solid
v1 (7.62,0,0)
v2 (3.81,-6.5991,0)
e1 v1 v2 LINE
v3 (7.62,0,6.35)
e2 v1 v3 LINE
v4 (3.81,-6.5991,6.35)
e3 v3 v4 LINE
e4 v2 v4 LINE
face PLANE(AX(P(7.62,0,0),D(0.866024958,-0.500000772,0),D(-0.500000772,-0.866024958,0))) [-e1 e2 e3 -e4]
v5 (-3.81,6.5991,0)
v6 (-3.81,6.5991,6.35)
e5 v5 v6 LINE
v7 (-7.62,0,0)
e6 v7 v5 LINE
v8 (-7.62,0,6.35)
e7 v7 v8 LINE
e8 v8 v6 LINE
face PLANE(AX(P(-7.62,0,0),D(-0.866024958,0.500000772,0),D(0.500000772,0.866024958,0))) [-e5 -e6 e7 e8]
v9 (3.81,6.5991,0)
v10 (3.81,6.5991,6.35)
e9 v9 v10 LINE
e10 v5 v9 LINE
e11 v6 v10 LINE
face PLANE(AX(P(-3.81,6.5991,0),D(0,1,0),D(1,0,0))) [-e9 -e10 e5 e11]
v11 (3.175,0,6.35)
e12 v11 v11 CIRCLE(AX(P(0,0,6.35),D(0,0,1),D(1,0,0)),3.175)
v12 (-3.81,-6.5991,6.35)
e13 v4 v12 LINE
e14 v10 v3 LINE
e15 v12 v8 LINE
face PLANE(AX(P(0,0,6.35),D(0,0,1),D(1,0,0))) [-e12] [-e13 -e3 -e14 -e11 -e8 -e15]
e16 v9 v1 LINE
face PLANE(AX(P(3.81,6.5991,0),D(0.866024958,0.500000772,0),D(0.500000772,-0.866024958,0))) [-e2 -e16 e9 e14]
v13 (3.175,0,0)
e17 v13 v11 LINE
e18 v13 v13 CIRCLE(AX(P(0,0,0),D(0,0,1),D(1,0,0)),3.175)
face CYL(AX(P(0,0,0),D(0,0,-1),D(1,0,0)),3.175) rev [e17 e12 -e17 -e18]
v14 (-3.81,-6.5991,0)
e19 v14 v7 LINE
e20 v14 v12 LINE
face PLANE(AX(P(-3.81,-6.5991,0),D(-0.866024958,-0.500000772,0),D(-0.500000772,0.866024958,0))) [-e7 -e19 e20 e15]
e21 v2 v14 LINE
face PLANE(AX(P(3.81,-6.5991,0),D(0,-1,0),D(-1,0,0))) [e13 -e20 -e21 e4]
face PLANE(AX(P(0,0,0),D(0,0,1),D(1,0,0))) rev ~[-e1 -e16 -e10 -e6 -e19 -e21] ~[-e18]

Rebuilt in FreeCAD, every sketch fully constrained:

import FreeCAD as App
import Part
import Sketcher

V = App.Vector
Q = App.Units.Quantity


def add_polygon(sketch, points):
    """Adds a closed chain of lines whose ends are joined by coincident constraints."""
    first, n = sketch.GeometryCount, len(points)
    for a, b in zip(points, points[1:] + points[:1]):
        sketch.addGeometry(Part.LineSegment(App.Vector(*a, 0), App.Vector(*b, 0)), False)
    for i in range(n):
        sketch.addConstraint(Sketcher.Constraint("Coincident", first + i, 2, first + (i + 1) % n, 1))

doc = App.newDocument("Part")
body = doc.addObject("PartDesign::Body", "Body")

# Sketch on XY plane
sketch1 = body.newObject("Sketcher::SketchObject", "Sketch")
sketch1.AttachmentSupport = (doc.getObject("XY_Plane"), [""])
sketch1.MapMode = "FlatFace"
add_polygon(sketch1, [(3.8, -6.6), (7.6, 0), (3.8, 6.6), (-3.8, 6.6), (-7.6, 0), (-3.8, -6.6)])  # lines 0-5
sketch1.addGeometry(Part.Circle(V(0, 0, 0), V(0, 0, 1), 3.2), False)  # 6
sketch1.addConstraint([
    Sketcher.Constraint("Horizontal", 2),
    Sketcher.Constraint("Horizontal", 5),
    Sketcher.Constraint("Coincident", 6, 3, -1, 1),
    Sketcher.Constraint("Symmetric", 0, 2, 3, 2, -1, 1),
    Sketcher.Constraint("Symmetric", 1, 2, 4, 2, -1, 1),
    Sketcher.Constraint("PointOnObject", 0, 2, -1),
    Sketcher.Constraint("Parallel", 0, 3),
    Sketcher.Constraint("Vertical", 2, 2, 4, 2),
    Sketcher.Constraint("Diameter", 6, Q("0.25 in")),
    Sketcher.Constraint("DistanceX", 2, 2, 2, 1, Q("0.3 in")),
    Sketcher.Constraint("Distance", 0, Q("0.3 in")),
    Sketcher.Constraint("DistanceX", -1, 1, 0, 2, Q("0.3 in")),
])
pad1 = body.newObject("PartDesign::Pad", "Pad")
pad1.Profile = sketch1
pad1.Length = Q("0.25 in")

doc.recompute()
